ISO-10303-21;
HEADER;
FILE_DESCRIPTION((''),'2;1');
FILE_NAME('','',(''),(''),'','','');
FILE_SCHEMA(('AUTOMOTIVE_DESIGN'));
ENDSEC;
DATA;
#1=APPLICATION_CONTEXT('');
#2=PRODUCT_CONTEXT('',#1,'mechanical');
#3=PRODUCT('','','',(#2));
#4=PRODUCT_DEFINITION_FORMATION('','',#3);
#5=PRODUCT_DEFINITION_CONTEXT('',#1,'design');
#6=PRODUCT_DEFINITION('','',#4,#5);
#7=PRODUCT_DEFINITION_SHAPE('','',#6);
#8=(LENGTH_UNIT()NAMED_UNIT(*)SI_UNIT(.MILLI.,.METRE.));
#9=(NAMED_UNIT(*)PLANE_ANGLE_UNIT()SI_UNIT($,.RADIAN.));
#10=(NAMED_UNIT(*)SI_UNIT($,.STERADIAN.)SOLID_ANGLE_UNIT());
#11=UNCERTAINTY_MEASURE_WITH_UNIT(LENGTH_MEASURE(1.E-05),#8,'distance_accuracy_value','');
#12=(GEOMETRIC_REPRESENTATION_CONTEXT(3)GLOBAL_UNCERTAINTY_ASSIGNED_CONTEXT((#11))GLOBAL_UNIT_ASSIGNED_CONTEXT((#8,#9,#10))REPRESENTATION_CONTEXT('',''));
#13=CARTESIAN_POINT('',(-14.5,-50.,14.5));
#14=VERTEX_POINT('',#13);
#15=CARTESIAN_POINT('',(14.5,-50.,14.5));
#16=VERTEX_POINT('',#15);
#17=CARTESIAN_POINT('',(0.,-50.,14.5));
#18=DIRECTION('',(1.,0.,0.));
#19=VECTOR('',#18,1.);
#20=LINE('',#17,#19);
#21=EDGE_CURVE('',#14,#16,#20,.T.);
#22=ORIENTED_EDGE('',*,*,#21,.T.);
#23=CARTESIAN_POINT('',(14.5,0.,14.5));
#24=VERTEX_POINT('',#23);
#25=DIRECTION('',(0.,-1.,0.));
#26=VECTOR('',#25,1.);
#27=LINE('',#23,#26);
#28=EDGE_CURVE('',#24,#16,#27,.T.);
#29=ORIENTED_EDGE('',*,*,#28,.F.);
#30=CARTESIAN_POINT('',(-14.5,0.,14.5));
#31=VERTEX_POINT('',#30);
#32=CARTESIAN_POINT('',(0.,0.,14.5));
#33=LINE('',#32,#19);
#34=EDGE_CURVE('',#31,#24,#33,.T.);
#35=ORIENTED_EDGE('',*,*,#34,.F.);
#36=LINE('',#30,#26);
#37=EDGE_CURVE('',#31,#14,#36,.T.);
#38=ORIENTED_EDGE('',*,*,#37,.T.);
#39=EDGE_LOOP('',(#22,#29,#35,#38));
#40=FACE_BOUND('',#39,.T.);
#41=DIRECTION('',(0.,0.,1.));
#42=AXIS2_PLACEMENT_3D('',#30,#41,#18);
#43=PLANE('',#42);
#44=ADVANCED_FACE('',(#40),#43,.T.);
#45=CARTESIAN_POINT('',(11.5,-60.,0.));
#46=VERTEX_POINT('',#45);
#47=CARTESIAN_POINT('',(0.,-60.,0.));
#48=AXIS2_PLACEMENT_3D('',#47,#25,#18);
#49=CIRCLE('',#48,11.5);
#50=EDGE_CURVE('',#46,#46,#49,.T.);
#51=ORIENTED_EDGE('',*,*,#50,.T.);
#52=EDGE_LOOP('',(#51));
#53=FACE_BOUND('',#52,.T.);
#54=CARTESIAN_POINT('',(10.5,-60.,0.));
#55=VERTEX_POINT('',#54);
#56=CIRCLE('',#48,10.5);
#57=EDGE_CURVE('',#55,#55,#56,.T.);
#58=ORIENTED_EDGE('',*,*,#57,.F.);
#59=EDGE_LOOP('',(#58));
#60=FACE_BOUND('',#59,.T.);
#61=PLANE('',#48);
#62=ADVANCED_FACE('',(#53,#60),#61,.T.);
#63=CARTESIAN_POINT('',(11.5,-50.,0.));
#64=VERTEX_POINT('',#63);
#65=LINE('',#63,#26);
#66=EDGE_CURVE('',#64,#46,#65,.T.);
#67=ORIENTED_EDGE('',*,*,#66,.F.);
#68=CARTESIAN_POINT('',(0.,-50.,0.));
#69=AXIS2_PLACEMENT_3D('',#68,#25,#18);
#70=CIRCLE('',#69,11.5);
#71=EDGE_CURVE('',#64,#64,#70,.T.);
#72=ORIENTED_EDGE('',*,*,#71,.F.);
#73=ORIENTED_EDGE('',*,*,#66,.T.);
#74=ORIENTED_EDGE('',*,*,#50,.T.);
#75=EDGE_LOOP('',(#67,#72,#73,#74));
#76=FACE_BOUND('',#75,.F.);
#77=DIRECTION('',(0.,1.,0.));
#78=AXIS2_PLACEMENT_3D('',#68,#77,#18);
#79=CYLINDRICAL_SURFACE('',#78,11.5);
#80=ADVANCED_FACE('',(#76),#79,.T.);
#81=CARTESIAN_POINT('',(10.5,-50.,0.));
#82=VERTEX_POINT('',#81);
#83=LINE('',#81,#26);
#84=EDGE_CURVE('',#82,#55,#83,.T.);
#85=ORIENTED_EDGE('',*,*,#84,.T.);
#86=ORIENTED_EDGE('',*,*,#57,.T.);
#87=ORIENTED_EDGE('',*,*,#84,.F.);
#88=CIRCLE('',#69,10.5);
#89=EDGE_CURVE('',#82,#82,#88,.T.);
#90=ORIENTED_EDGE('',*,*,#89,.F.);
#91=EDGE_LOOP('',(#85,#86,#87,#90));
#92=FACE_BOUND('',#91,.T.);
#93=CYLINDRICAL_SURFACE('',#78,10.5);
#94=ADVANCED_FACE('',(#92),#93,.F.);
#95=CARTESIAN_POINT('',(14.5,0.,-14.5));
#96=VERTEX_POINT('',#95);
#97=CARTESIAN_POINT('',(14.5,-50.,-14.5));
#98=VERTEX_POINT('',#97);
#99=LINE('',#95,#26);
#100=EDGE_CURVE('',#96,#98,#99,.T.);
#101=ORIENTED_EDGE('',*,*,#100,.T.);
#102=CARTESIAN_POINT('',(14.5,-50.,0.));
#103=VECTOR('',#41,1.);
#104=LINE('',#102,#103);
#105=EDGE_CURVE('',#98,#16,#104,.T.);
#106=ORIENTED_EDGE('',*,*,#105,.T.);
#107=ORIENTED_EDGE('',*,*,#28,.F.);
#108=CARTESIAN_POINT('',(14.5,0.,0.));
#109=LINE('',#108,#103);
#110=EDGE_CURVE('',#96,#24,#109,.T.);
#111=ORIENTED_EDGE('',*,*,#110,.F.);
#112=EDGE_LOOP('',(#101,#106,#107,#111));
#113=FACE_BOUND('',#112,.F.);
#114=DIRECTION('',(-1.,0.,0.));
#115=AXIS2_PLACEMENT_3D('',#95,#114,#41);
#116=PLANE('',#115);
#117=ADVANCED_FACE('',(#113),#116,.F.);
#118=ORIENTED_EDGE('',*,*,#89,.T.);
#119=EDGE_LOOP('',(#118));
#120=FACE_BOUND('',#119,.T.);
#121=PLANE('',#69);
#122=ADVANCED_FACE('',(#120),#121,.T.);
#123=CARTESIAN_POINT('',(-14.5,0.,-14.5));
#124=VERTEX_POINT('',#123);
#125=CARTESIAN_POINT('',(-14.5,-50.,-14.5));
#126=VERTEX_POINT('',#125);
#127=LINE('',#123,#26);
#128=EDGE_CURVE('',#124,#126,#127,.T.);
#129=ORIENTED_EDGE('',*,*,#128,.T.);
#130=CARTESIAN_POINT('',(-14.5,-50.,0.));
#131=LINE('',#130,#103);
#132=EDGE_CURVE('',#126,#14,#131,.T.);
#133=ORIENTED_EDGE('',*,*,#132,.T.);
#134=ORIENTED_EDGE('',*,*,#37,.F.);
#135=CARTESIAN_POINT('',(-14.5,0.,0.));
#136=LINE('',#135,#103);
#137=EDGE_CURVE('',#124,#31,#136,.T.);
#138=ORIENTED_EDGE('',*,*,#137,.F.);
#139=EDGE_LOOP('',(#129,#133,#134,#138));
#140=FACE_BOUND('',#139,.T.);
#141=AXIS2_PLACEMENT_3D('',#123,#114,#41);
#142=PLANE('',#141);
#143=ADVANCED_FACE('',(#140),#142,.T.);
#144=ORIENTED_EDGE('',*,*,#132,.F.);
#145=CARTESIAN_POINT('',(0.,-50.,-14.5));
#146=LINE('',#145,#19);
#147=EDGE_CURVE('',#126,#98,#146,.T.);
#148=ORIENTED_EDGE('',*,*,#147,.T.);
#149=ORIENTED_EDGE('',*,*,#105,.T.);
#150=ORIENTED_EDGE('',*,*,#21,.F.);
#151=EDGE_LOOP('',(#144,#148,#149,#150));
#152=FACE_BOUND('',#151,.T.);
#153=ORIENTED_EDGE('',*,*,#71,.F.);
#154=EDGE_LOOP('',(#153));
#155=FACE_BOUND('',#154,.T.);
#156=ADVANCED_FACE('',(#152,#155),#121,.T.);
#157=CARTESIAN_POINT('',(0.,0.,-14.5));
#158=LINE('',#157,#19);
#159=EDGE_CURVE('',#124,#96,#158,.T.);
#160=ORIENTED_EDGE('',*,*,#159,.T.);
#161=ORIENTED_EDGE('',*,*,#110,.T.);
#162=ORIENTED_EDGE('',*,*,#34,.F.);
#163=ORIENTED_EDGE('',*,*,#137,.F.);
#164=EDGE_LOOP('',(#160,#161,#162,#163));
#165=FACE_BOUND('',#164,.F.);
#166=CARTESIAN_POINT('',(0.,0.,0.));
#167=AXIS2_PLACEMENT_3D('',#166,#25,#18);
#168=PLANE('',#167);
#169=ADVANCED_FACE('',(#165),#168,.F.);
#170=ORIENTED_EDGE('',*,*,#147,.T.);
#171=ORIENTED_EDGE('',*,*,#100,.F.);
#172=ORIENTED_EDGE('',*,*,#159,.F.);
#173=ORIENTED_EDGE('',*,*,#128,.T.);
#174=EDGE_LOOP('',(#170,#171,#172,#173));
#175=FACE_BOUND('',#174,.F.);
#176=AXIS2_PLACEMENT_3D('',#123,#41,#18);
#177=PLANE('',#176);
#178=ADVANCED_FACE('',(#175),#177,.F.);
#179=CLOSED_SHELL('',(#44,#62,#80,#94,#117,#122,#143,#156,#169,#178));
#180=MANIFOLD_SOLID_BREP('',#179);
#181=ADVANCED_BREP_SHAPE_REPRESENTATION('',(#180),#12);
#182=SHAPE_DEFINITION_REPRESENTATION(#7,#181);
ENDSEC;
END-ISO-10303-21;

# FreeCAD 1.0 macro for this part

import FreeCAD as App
import Part
import Sketcher

V = App.Vector

doc = App.newDocument("Part")
body = doc.addObject("PartDesign::Body", "Body")

sketch1 = doc.addObject("Sketcher::SketchObject", "Sketch")
body.addObject(sketch1)
sketch1.AttachmentSupport = (doc.XZ_Plane, [""])
sketch1.MapMode = "FlatFace"
sketch1.addGeometry([
    Part.LineSegment(V(-14.5, 14.5, 0), V(-14.5, -14.5, 0)),
    Part.LineSegment(V(-14.5, -14.5, 0), V(14.5, -14.5, 0)),
    Part.LineSegment(V(14.5, -14.5, 0), V(14.5, 14.5, 0)),
    Part.LineSegment(V(14.5, 14.5, 0), V(-14.5, 14.5, 0)),
], False)
sketch1.addConstraint([
    Sketcher.Constraint("Coincident", 0, 2, 1, 1),
    Sketcher.Constraint("Coincident", 1, 2, 2, 1),
    Sketcher.Constraint("Coincident", 2, 2, 3, 1),
    Sketcher.Constraint("Coincident", 3, 2, 0, 1),
    Sketcher.Constraint("Vertical", 0),
    Sketcher.Constraint("Horizontal", 1),
    Sketcher.Constraint("Vertical", 2),
    Sketcher.Constraint("Horizontal", 3),
    Sketcher.Constraint("Symmetric", 0, 2, 2, 2, -1, 1),
    Sketcher.Constraint("Equal", 3, 0),
    Sketcher.Constraint("DistanceX", 1, 1, 1, 2, 29.0),
])
pad1 = doc.addObject("PartDesign::Pad", "Pad")
body.addObject(pad1)
pad1.Profile = sketch1
pad1.Length = 50

sketch2 = doc.addObject("Sketcher::SketchObject", "Sketch001")
body.addObject(sketch2)
sketch2.AttachmentSupport = (doc.XZ_Plane, [""])
sketch2.MapMode = "FlatFace"
sketch2.AttachmentOffset = App.Placement(V(0, 0, 50), App.Rotation())
sketch2.addGeometry([
    Part.Circle(V(0, 0, 0), V(0, 0, 1), 11.5),
    Part.Circle(V(0, 0, 0), V(0, 0, 1), 10.5),
], False)
sketch2.addConstraint([
    Sketcher.Constraint("Coincident", 0, 3, -1, 1),
    Sketcher.Constraint("Coincident", 1, 3, -1, 1),
    Sketcher.Constraint("Diameter", 0, 23.0),
    Sketcher.Constraint("Diameter", 1, 21.0),
])
pad2 = doc.addObject("PartDesign::Pad", "Pad001")
body.addObject(pad2)
pad2.Profile = sketch2
pad2.Length = 10

doc.recompute()
